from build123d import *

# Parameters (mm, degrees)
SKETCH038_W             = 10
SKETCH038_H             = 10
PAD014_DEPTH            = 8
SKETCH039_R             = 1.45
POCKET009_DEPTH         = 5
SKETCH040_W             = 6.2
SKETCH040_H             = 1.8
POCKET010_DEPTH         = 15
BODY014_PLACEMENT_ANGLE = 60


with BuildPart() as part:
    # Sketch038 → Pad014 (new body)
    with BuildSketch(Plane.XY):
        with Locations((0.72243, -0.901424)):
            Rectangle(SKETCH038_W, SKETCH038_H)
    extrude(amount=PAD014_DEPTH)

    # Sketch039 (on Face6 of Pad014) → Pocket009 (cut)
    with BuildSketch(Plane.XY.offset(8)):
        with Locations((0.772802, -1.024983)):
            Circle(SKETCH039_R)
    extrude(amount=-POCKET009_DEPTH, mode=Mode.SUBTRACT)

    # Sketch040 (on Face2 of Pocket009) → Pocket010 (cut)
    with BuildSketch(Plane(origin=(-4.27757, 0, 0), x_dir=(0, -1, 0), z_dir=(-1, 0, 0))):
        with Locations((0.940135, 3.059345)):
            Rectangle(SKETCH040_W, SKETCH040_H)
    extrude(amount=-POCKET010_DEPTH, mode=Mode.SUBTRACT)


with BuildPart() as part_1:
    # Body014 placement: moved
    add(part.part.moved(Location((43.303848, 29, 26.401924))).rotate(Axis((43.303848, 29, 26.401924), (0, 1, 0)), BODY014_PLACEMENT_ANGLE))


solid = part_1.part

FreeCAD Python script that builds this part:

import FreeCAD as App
import Part
import Sketcher
from FreeCAD import Vector


def add_polygon(sketch, points):
    """Adds a closed chain of lines whose ends are joined by coincident constraints."""
    first, n = sketch.GeometryCount, len(points)
    for a, b in zip(points, points[1:] + points[:1]):
        sketch.addGeometry(Part.LineSegment(App.Vector(*a, 0), App.Vector(*b, 0)), False)
    for i in range(n):
        sketch.addConstraint(Sketcher.Constraint("Coincident", first + i, 2, first + (i + 1) % n, 1))

doc = App.newDocument("Part")
body = doc.addObject("PartDesign::Body", "Body")

# Sketch on XY plane
sketch1 = doc.addObject("Sketcher::SketchObject", "Sketch")
body.addObject(sketch1)
sketch1.AttachmentSupport = (doc.XY_Plane, [""])
sketch1.MapMode = "FlatFace"
add_polygon(sketch1, [(-4, 4), (-4, -6), (6, -6), (6, 4)])  # lines 0-3
sketch1.addConstraint(Sketcher.Constraint("Vertical", 0))
sketch1.addConstraint(Sketcher.Constraint("Horizontal", 1))
sketch1.addConstraint(Sketcher.Constraint("Vertical", 2))
sketch1.addConstraint(Sketcher.Constraint("Horizontal", 3))
sketch1.addConstraint(Sketcher.Constraint("Equal", 3, 0))
sketch1.addConstraint(Sketcher.Constraint("DistanceX", 1, 1, 1, 2, 10.0))
sketch1.addConstraint(Sketcher.Constraint("DistanceX", 0, 2, -1, 1, 4.27757))
sketch1.addConstraint(Sketcher.Constraint("DistanceY", 0, 2, -1, 1, 5.901424))
pad1 = doc.addObject("PartDesign::Pad", "Pad")
body.addObject(pad1)
pad1.Profile = sketch1
pad1.Length = 8

# Sketch on XY plane
sketch2 = doc.addObject("Sketcher::SketchObject", "Sketch001")
body.addObject(sketch2)
sketch2.AttachmentSupport = (doc.XY_Plane, [""])
sketch2.MapMode = "FlatFace"
sketch2.AttachmentOffset = App.Placement(Vector(0, 0, 8), App.Rotation())
sketch2.addGeometry(Part.Circle(Vector(0.8, -1, 0), Vector(0, 0, 1), 1.4), False)
sketch2.addConstraint(Sketcher.Constraint("Diameter", 0, 2.9))
sketch2.addConstraint(Sketcher.Constraint("DistanceX", -1, 1, 0, 3, 0.772802))
sketch2.addConstraint(Sketcher.Constraint("DistanceY", 0, 3, -1, 1, 1.024983))
pocket1 = doc.addObject("PartDesign::Pocket", "Pocket")
body.addObject(pocket1)
pocket1.Profile = sketch2
pocket1.Length = 5

# Sketch on YZ plane
sketch3 = doc.addObject("Sketcher::SketchObject", "Sketch002")
body.addObject(sketch3)
sketch3.AttachmentSupport = (doc.YZ_Plane, [""])
sketch3.MapMode = "FlatFace"
sketch3.AttachmentOffset = App.Placement(Vector(0, 0, -4.27757), App.Rotation())
add_polygon(sketch3, [(2.2, 4), (2.2, 2.2), (-4, 2.2), (-4, 4)])  # lines 0-3
sketch3.addConstraint(Sketcher.Constraint("Vertical", 0))
sketch3.addConstraint(Sketcher.Constraint("Horizontal", 1))
sketch3.addConstraint(Sketcher.Constraint("Vertical", 2))
sketch3.addConstraint(Sketcher.Constraint("Horizontal", 3))
sketch3.addConstraint(Sketcher.Constraint("DistanceX", 1, 2, 1, 1, 6.2))
sketch3.addConstraint(Sketcher.Constraint("DistanceY", 0, 2, 0, 1, 1.8))
sketch3.addConstraint(Sketcher.Constraint("DistanceX", -1, 1, 0, 2, 2.159865))
sketch3.addConstraint(Sketcher.Constraint("DistanceY", -1, 1, 0, 2, 2.159345))
pocket2 = doc.addObject("PartDesign::Pocket", "Pocket001")
body.addObject(pocket2)
pocket2.Profile = sketch3
pocket2.Length = 15
pocket2.Reversed = True
body2 = doc.addObject("PartDesign::Body", "Body001")
doc.recompute()

body.Placement = App.Placement(Vector(43.303848, 29, 26.401924), App.Rotation(Vector(0, 1, 0), 60))
boolean = doc.addObject("PartDesign::Boolean", "Boolean")
body2.addObject(boolean)
boolean.Type = "Fuse"
boolean.addObjects([body])

doc.recompute()
